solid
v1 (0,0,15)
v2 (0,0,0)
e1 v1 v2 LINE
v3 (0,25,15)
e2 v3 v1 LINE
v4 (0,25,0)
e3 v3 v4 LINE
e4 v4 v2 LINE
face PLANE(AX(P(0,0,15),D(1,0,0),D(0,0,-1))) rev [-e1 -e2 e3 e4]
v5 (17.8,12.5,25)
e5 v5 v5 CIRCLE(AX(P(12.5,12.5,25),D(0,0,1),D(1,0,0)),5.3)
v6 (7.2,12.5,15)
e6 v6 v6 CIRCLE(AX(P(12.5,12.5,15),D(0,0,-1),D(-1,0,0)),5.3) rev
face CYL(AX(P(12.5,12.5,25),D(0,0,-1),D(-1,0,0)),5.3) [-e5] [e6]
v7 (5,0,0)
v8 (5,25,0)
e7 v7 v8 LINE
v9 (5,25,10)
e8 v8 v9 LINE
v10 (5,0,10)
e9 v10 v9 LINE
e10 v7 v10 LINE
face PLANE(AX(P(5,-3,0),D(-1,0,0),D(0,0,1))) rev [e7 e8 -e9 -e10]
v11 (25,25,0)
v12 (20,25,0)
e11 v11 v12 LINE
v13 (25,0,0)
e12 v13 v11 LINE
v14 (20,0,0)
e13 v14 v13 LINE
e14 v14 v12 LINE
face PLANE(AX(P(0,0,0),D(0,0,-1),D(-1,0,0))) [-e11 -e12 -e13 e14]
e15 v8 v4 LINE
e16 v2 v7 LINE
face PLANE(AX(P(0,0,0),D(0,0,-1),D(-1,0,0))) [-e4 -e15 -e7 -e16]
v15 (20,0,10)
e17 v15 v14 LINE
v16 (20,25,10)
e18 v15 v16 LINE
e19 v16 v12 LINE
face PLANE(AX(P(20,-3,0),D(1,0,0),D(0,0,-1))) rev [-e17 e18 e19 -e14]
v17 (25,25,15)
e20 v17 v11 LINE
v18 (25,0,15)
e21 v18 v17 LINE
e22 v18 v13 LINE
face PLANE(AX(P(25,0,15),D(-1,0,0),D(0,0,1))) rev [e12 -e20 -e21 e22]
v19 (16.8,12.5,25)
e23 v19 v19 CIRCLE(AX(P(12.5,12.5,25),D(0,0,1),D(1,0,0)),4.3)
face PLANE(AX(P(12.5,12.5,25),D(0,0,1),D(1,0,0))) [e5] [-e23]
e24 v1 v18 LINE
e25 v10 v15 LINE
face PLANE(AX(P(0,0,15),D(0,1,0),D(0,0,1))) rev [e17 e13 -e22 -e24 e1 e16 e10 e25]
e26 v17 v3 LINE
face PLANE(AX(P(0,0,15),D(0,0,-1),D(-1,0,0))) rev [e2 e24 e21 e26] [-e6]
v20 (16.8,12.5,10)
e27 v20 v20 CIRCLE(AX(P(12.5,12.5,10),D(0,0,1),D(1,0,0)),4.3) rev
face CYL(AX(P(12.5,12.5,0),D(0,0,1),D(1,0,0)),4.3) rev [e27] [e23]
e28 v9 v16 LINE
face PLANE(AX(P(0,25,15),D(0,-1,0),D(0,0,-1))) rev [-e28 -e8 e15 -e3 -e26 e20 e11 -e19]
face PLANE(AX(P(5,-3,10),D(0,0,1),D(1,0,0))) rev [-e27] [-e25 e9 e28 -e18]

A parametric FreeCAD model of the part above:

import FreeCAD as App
import Part
import Sketcher
from FreeCAD import Vector
Q = App.Units.Quantity


def add_polygon(sketch, points):
    """Adds a closed chain of lines whose ends are joined by coincident constraints."""
    first, n = sketch.GeometryCount, len(points)
    for a, b in zip(points, points[1:] + points[:1]):
        sketch.addGeometry(Part.LineSegment(App.Vector(*a, 0), App.Vector(*b, 0)), False)
    for i in range(n):
        sketch.addConstraint(Sketcher.Constraint("Coincident", first + i, 2, first + (i + 1) % n, 1))

doc = App.newDocument("Part")
body = doc.addObject("PartDesign::Body", "Body")

sketch1 = doc.addObject("Sketcher::SketchObject", "Sketch")
body.addObject(sketch1)
sketch1.AttachmentSupport = (doc.XY_Plane, [""])
sketch1.MapMode = "FlatFace"
add_polygon(sketch1, [(0, 25), (0, 0), (25, 0), (25, 25)])
sketch1.addConstraint(Sketcher.Constraint("Vertical", 0))
sketch1.addConstraint(Sketcher.Constraint("Horizontal", 1))
sketch1.addConstraint(Sketcher.Constraint("Vertical", 2))
sketch1.addConstraint(Sketcher.Constraint("Horizontal", 3))
sketch1.addConstraint(Sketcher.Constraint("Coincident", 0, 2, -1, 1))
sketch1.addConstraint(Sketcher.Constraint("Equal", 3, 0))
sketch1.addConstraint(Sketcher.Constraint("DistanceX", 1, 1, 1, 2, Q("25 mm")))
pad1 = doc.addObject("PartDesign::Pad", "Pad")
body.addObject(pad1)
pad1.Profile = sketch1
pad1.Length = 15

sketch2 = doc.addObject("Sketcher::SketchObject", "Sketch001")
body.addObject(sketch2)
sketch2.AttachmentSupport = (doc.XY_Plane, [""])
sketch2.MapMode = "FlatFace"
sketch2.AttachmentOffset = App.Placement(Vector(0, 0, 15), App.Rotation())
sketch2.addGeometry(Part.Circle(Vector(12.5, 12.5, 0), Vector(0, 0, 1), 4.3), False)
sketch2.addConstraint(Sketcher.Constraint("Diameter", 0, Q("8.6 mm")))
sketch2.addConstraint(Sketcher.Constraint("DistanceX", -1, 1, 0, 3, Q("12.5 mm")))
sketch2.addConstraint(Sketcher.Constraint("DistanceY", -1, 1, 0, 3, Q("12.5 mm")))
pocket1 = doc.addObject("PartDesign::Pocket", "Pocket")
body.addObject(pocket1)
pocket1.Profile = sketch2
pocket1.Type = "ThroughAll"

sketch3 = doc.addObject("Sketcher::SketchObject", "Sketch002")
body.addObject(sketch3)
sketch3.AttachmentSupport = (doc.XY_Plane, [""])
sketch3.MapMode = "FlatFace"
sketch3.AttachmentOffset = App.Placement(Vector(0, 0, 25), App.Rotation())
sketch3.addGeometry(Part.Circle(Vector(12.5, 12.5, 0), Vector(0, 0, 1), 5.3), False)
sketch3.addGeometry(Part.Circle(Vector(12.5, 12.5, 0), Vector(0, 0, 1), 4.3), False)
sketch3.addConstraint(Sketcher.Constraint("Coincident", 1, 3, 0, 3))
sketch3.addConstraint(Sketcher.Constraint("Diameter", 0, Q("10.6 mm")))
sketch3.addConstraint(Sketcher.Constraint("Diameter", 1, Q("8.6 mm")))
sketch3.addConstraint(Sketcher.Constraint("DistanceX", -1, 1, 0, 3, Q("12.5 mm")))
sketch3.addConstraint(Sketcher.Constraint("DistanceY", -1, 1, 0, 3, Q("12.5 mm")))
pad2 = doc.addObject("PartDesign::Pad", "Pad001")
body.addObject(pad2)
pad2.Profile = sketch3
pad2.Length = 10
pad2.Reversed = True

sketch4 = doc.addObject("Sketcher::SketchObject", "Sketch003")
body.addObject(sketch4)
sketch4.AttachmentSupport = (doc.XZ_Plane, [""])
sketch4.MapMode = "FlatFace"
sketch4.AttachmentOffset = App.Placement(Vector(0, 0, -25), App.Rotation())
add_polygon(sketch4, [(5, 0), (5, 10), (20, 10), (20, 0)])
sketch4.addConstraint(Sketcher.Constraint("Vertical", 0))
sketch4.addConstraint(Sketcher.Constraint("Horizontal", 1))
sketch4.addConstraint(Sketcher.Constraint("Vertical", 2))
sketch4.addConstraint(Sketcher.Constraint("Horizontal", 3))
sketch4.addConstraint(Sketcher.Constraint("PointOnObject", 2, 2, -1))
sketch4.addConstraint(Sketcher.Constraint("DistanceX", 1, 1, 1, 2, Q("15 mm")))
sketch4.addConstraint(Sketcher.Constraint("DistanceY", 0, 1, 0, 2, Q("10 mm")))
sketch4.addConstraint(Sketcher.Constraint("DistanceX", -1, 1, 0, 2, Q("5 mm")))
pocket2 = doc.addObject("PartDesign::Pocket", "Pocket001")
body.addObject(pocket2)
pocket2.Profile = sketch4
pocket2.Length = 28
pocket2.Reversed = True

doc.recompute()
